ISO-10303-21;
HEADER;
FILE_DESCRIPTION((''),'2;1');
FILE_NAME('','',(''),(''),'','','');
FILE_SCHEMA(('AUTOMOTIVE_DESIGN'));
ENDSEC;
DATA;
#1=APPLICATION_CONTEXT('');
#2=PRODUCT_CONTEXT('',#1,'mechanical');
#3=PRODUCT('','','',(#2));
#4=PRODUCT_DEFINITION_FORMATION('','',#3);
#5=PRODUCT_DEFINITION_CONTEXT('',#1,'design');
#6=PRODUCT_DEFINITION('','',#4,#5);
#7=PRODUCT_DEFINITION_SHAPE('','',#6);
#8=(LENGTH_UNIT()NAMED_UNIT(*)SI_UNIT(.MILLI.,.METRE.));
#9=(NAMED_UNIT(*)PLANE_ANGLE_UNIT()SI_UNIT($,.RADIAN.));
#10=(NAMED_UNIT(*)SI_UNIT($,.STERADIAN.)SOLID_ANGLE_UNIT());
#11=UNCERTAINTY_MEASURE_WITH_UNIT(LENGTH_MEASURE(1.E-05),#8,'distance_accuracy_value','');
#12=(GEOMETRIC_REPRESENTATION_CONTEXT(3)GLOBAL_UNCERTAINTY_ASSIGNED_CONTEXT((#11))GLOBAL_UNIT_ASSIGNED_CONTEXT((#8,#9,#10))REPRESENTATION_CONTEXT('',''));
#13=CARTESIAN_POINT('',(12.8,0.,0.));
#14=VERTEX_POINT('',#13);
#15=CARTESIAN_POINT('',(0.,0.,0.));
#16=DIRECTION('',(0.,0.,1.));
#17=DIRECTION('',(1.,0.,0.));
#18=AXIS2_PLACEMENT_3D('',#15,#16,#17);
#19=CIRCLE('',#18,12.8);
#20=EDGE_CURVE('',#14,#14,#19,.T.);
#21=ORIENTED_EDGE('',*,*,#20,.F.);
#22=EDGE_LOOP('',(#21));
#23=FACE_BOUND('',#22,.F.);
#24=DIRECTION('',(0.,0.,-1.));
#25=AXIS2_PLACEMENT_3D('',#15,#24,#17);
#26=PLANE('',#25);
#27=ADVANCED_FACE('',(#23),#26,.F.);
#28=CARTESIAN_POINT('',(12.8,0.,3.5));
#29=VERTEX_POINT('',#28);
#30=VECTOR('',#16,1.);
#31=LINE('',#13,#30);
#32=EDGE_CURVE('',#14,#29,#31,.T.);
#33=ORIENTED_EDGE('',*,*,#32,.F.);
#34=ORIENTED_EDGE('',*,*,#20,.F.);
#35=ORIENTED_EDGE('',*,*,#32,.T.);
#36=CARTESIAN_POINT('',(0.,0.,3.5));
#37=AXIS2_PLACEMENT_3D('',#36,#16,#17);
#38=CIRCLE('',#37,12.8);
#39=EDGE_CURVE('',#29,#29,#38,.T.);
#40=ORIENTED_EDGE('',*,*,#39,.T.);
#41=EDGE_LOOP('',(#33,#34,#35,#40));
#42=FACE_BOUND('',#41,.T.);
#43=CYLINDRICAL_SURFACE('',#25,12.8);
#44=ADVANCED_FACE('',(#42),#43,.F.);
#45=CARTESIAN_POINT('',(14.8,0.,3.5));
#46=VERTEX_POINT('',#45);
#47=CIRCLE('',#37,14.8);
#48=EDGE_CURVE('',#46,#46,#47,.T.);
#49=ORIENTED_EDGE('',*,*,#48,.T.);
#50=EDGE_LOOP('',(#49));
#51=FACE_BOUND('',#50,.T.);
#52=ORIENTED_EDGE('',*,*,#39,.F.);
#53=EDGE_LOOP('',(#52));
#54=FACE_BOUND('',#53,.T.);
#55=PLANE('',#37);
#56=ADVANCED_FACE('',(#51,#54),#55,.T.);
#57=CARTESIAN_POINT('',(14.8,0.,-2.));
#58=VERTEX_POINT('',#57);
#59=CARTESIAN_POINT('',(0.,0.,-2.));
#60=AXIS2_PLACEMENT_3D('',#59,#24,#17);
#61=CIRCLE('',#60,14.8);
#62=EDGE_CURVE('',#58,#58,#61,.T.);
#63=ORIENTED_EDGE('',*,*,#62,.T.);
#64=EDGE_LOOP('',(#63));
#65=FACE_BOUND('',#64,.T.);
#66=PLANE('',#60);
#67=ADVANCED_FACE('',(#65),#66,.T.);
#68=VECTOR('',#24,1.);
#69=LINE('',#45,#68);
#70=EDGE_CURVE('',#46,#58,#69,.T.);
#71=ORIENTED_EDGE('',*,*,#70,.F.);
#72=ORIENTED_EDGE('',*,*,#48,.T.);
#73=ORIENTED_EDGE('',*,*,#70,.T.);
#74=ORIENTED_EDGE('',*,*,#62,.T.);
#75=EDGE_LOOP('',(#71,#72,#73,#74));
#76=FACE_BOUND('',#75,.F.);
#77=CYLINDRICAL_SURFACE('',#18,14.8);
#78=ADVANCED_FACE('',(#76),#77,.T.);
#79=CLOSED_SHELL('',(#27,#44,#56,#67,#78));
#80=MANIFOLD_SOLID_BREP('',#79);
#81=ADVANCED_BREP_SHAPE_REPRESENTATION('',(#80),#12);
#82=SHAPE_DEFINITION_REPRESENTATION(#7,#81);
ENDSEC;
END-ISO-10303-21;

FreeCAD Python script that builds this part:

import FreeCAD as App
import Part
import Sketcher

V = App.Vector
Q = App.Units.Quantity

doc = App.newDocument("Part")
body = doc.addObject("PartDesign::Body", "Body")

sketch1 = doc.addObject("Sketcher::SketchObject", "Sketch")
body.addObject(sketch1)
sketch1.AttachmentSupport = (doc.XY_Plane, [""])
sketch1.MapMode = "FlatFace"
sketch1.addGeometry(Part.Circle(V(0, 0, 0), V(0, 0, 1), 15), False)
sketch1.addGeometry(Part.Circle(V(0, 0, 0), V(0, 0, 1), 13), False)
sketch1.addConstraint(Sketcher.Constraint("Coincident", 0, 3, -1, 1))
sketch1.addConstraint(Sketcher.Constraint("Coincident", 1, 3, -1, 1))
sketch1.addConstraint(Sketcher.Constraint("Diameter", 0, Q("29.6 mm")))
sketch1.addConstraint(Sketcher.Constraint("Diameter", 1, Q("25.6 mm")))
pad1 = doc.addObject("PartDesign::Pad", "Pad")
body.addObject(pad1)
pad1.Profile = sketch1
pad1.Length = 3.5

sketch2 = doc.addObject("Sketcher::SketchObject", "Sketch001")
body.addObject(sketch2)
sketch2.AttachmentSupport = (doc.XY_Plane, [""])
sketch2.MapMode = "FlatFace"
sketch2.addGeometry(Part.Circle(V(0, 0, 0), V(0, 0, 1), 15), False)
sketch2.addConstraint(Sketcher.Constraint("Coincident", 0, 3, -1, 1))
sketch2.addConstraint(Sketcher.Constraint("Diameter", 0, Q("29.6 mm")))
pad2 = doc.addObject("PartDesign::Pad", "Pad001")
body.addObject(pad2)
pad2.Profile = sketch2
pad2.Length = 2
pad2.Reversed = True

doc.recompute()
